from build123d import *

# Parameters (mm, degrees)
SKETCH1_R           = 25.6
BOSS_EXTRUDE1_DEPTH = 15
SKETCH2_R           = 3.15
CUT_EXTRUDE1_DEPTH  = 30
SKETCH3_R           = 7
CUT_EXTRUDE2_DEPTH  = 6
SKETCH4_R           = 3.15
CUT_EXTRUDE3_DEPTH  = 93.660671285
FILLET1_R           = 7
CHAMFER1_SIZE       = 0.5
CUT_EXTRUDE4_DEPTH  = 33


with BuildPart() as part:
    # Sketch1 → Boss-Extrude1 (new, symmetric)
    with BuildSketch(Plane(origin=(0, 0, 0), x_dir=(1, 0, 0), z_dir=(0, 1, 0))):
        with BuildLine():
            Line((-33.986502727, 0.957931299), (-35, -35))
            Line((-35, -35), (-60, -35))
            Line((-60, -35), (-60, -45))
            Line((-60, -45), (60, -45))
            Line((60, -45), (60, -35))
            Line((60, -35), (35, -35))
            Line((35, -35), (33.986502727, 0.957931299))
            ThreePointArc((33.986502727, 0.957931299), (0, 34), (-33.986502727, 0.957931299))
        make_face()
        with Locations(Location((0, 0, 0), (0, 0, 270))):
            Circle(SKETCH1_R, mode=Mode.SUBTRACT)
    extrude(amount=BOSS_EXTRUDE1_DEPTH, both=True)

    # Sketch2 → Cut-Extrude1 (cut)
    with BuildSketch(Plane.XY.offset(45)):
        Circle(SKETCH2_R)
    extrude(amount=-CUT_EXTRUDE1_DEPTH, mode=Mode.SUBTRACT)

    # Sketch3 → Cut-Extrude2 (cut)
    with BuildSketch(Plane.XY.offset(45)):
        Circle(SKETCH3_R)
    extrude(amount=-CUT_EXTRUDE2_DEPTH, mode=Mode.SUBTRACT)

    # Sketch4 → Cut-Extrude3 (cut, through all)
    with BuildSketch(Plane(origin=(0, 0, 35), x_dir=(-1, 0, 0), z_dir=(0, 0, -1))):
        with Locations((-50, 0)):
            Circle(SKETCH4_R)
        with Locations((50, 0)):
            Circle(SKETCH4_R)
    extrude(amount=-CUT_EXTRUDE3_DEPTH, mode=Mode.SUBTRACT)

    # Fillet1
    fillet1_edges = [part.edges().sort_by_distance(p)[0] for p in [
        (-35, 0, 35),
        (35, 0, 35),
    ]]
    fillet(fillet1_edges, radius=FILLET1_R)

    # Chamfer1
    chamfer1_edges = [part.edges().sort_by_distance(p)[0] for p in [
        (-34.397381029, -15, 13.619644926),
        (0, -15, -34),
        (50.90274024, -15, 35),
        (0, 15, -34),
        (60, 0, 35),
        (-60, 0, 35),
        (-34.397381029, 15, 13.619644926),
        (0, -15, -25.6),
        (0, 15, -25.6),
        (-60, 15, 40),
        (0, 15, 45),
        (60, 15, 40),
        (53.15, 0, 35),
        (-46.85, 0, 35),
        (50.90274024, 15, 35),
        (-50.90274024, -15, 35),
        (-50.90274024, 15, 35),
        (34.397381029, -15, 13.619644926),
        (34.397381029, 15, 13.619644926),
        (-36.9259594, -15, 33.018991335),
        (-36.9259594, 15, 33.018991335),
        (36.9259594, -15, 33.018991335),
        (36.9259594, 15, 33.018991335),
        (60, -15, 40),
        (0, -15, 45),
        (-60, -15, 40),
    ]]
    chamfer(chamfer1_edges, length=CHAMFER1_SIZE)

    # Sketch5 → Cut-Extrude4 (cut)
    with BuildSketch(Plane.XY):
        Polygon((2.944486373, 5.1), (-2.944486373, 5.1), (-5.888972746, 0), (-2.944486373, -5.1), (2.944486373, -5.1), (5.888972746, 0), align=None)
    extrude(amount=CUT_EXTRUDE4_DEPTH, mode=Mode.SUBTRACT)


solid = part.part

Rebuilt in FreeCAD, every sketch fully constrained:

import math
import FreeCAD as App
import Part
import Sketcher
from FreeCAD import Vector
Q = App.Units.Quantity


def edges_at(feature, points):
    """Names of the edges that pass closest to the given points."""
    edges = feature.Shape.Edges
    near = lambda p: min(range(len(edges)), key=lambda i: edges[i].distToShape(Part.Vertex(*p))[0])
    return sorted({f"Edge{near(p) + 1}" for p in points})


def add_polygon(sketch, points):
    """Adds a closed chain of lines whose ends are joined by coincident constraints."""
    first, n = sketch.GeometryCount, len(points)
    for a, b in zip(points, points[1:] + points[:1]):
        sketch.addGeometry(Part.LineSegment(App.Vector(*a, 0), App.Vector(*b, 0)), False)
    for i in range(n):
        sketch.addConstraint(Sketcher.Constraint("Coincident", first + i, 2, first + (i + 1) % n, 1))

doc = App.newDocument("Part")
body = doc.addObject("PartDesign::Body", "Body")

sketch1 = doc.addObject("Sketcher::SketchObject", "Sketch")
body.addObject(sketch1)
sketch1.AttachmentSupport = (doc.XZ_Plane, [""])
sketch1.MapMode = "FlatFace"
sketch1.addGeometry(Part.LineSegment(Vector(-33.986503, -0.957931, 0), Vector(-35, 35, 0)), False)
sketch1.addGeometry(Part.LineSegment(Vector(-35, 35, 0), Vector(-60, 35, 0)), False)
sketch1.addGeometry(Part.LineSegment(Vector(-60, 35, 0), Vector(-60, 45, 0)), False)
sketch1.addGeometry(Part.LineSegment(Vector(-60, 45, 0), Vector(60, 45, 0)), False)
sketch1.addGeometry(Part.LineSegment(Vector(60, 45, 0), Vector(60, 35, 0)), False)
sketch1.addGeometry(Part.LineSegment(Vector(60, 35, 0), Vector(35, 35, 0)), False)
sketch1.addGeometry(Part.LineSegment(Vector(35, 35, 0), Vector(33.986503, -0.957931, 0)), False)
sketch1.addGeometry(Part.ArcOfCircle(Part.Circle(Vector(0, 0, 0), Vector(0, 0, 1), 34), math.radians(-178.385509), math.radians(-1.614491)), False)
sketch1.addGeometry(Part.Circle(Vector(0, 0, 0), Vector(0, 0, 1), 25.6), False)
sketch1.addConstraint(Sketcher.Constraint("Coincident", 0, 2, 1, 1))
sketch1.addConstraint(Sketcher.Constraint("Coincident", 1, 2, 2, 1))
sketch1.addConstraint(Sketcher.Constraint("Coincident", 2, 2, 3, 1))
sketch1.addConstraint(Sketcher.Constraint("Coincident", 3, 2, 4, 1))
sketch1.addConstraint(Sketcher.Constraint("Coincident", 4, 2, 5, 1))
sketch1.addConstraint(Sketcher.Constraint("Coincident", 5, 2, 6, 1))
sketch1.addConstraint(Sketcher.Constraint("Tangent", 6, 2, 7, 2))
sketch1.addConstraint(Sketcher.Constraint("Tangent", 7, 1, 0, 1))
sketch1.addConstraint(Sketcher.Constraint("Horizontal", 1))
sketch1.addConstraint(Sketcher.Constraint("Vertical", 2))
sketch1.addConstraint(Sketcher.Constraint("Horizontal", 3))
sketch1.addConstraint(Sketcher.Constraint("Vertical", 4))
sketch1.addConstraint(Sketcher.Constraint("Horizontal", 5))
sketch1.addConstraint(Sketcher.Constraint("Coincident", 7, 3, -1, 1))
sketch1.addConstraint(Sketcher.Constraint("Coincident", 8, 3, -1, 1))
sketch1.addConstraint(Sketcher.Constraint("Symmetric", 1, 2, 4, 2, -2))
sketch1.addConstraint(Sketcher.Constraint("Horizontal", 6, 2, 7, 1))
sketch1.addConstraint(Sketcher.Constraint("Radius", 7, Q("34 mm")))
sketch1.addConstraint(Sketcher.Constraint("Diameter", 8, Q("51.2 mm")))
sketch1.addConstraint(Sketcher.Constraint("DistanceX", 1, 2, 1, 1, Q("25 mm")))
sketch1.addConstraint(Sketcher.Constraint("DistanceX", 3, 1, 3, 2, Q("120 mm")))
sketch1.addConstraint(Sketcher.Constraint("DistanceY", 2, 1, 2, 2, Q("10 mm")))
sketch1.addConstraint(Sketcher.Constraint("DistanceY", -1, 1, 0, 2, Q("35 mm")))
pad1 = doc.addObject("PartDesign::Pad", "Pad")
body.addObject(pad1)
pad1.Profile = sketch1
pad1.Length = 30
pad1.Midplane = True

sketch2 = doc.addObject("Sketcher::SketchObject", "Sketch001")
body.addObject(sketch2)
sketch2.AttachmentSupport = (doc.XY_Plane, [""])
sketch2.MapMode = "FlatFace"
sketch2.AttachmentOffset = App.Placement(Vector(0, 0, 45), App.Rotation())
sketch2.addGeometry(Part.Circle(Vector(0, 0, 0), Vector(0, 0, 1), 3.15), False)
sketch2.addConstraint(Sketcher.Constraint("Coincident", 0, 3, -1, 1))
sketch2.addConstraint(Sketcher.Constraint("Diameter", 0, Q("6.3 mm")))
pocket1 = doc.addObject("PartDesign::Pocket", "Pocket")
body.addObject(pocket1)
pocket1.Profile = sketch2
pocket1.Length = 30

sketch3 = doc.addObject("Sketcher::SketchObject", "Sketch002")
body.addObject(sketch3)
sketch3.AttachmentSupport = (doc.XY_Plane, [""])
sketch3.MapMode = "FlatFace"
sketch3.AttachmentOffset = App.Placement(Vector(0, 0, 45), App.Rotation())
sketch3.addGeometry(Part.Circle(Vector(0, 0, 0), Vector(0, 0, 1), 7), False)
sketch3.addConstraint(Sketcher.Constraint("Coincident", 0, 3, -1, 1))
sketch3.addConstraint(Sketcher.Constraint("Diameter", 0, Q("14 mm")))
pocket2 = doc.addObject("PartDesign::Pocket", "Pocket001")
body.addObject(pocket2)
pocket2.Profile = sketch3
pocket2.Length = 6

sketch4 = doc.addObject("Sketcher::SketchObject", "Sketch003")
body.addObject(sketch4)
sketch4.AttachmentSupport = (doc.XY_Plane, [""])
sketch4.MapMode = "FlatFace"
sketch4.AttachmentOffset = App.Placement(Vector(0, 0, 35), App.Rotation())
sketch4.addGeometry(Part.Circle(Vector(50, 0, 0), Vector(0, 0, 1), 3.15), False)
sketch4.addGeometry(Part.Circle(Vector(-50, 0, 0), Vector(0, 0, 1), 3.15), False)
sketch4.addConstraint(Sketcher.Constraint("Equal", 0, 1))
sketch4.addConstraint(Sketcher.Constraint("Symmetric", 0, 3, 1, 3, -1, 1))
sketch4.addConstraint(Sketcher.Constraint("PointOnObject", 0, 3, -1))
sketch4.addConstraint(Sketcher.Constraint("Diameter", 0, Q("6.3 mm")))
sketch4.addConstraint(Sketcher.Constraint("DistanceX", -1, 1, 0, 3, Q("50 mm")))
pocket3 = doc.addObject("PartDesign::Pocket", "Pocket002")
body.addObject(pocket3)
pocket3.Profile = sketch4
pocket3.Type = "ThroughAll"
pocket3.Reversed = True
doc.recompute()

fillet = doc.addObject("PartDesign::Fillet", "Fillet")
body.addObject(fillet)
fillet.Base = (pocket3, edges_at(pocket3, [(-35, 0, 35), (35, 0, 35)]))
fillet.Radius = 7
doc.recompute()

chamfer = doc.addObject("PartDesign::Chamfer", "Chamfer")
body.addObject(chamfer)
chamfer.Base = (fillet, edges_at(fillet, [
    (-34.397, -15, 13.62),
    (0, -15, -34),
    (50.903, -15, 35),
    (0, 15, -34),
    (60, 0, 35),
    (-60, 0, 35),
    (-34.397, 15, 13.62),
    (0, -15, -25.6),
    (0, 15, -25.6),
    (-60, 15, 40),
    (0, 15, 45),
    (60, 15, 40),
    (53.15, 0, 35),
    (-46.85, 0, 35),
    (50.903, 15, 35),
    (-50.903, -15, 35),
    (-50.903, 15, 35),
    (34.397, -15, 13.62),
    (34.397, 15, 13.62),
    (-36.926, -15, 33.019),
    (-36.926, 15, 33.019),
    (36.926, -15, 33.019),
    (36.926, 15, 33.019),
    (60, -15, 40),
    (0, -15, 45),
    (-60, -15, 40),
]))
chamfer.Size = 0.5

sketch5 = doc.addObject("Sketcher::SketchObject", "Sketch004")
body.addObject(sketch5)
sketch5.AttachmentSupport = (doc.XY_Plane, [""])
sketch5.MapMode = "FlatFace"
add_polygon(sketch5, [(2.944486, 5.1), (-2.944486, 5.1), (-5.888973, 0), (-2.944486, -5.1), (2.944486, -5.1), (5.888973, 0)])
sketch5.addConstraint(Sketcher.Constraint("Horizontal", 0))
sketch5.addConstraint(Sketcher.Constraint("Horizontal", 3))
sketch5.addConstraint(Sketcher.Constraint("Symmetric", 0, 2, 3, 2, -1, 1))
sketch5.addConstraint(Sketcher.Constraint("Symmetric", 1, 2, 4, 2, -1, 1))
sketch5.addConstraint(Sketcher.Constraint("PointOnObject", 1, 2, -1))
sketch5.addConstraint(Sketcher.Constraint("Parallel", 2, 5))
sketch5.addConstraint(Sketcher.Constraint("Vertical", 0, 2, 2, 2))
sketch5.addConstraint(Sketcher.Constraint("Angle", 1, Q("-120 deg")))
sketch5.addConstraint(Sketcher.Constraint("DistanceY", -1, 1, 0, 2, Q("5.1 mm")))
sketch5.addConstraint(Sketcher.Constraint("DistanceX", 0, 2, 0, 1, Q("5.888973 mm")))
pocket4 = doc.addObject("PartDesign::Pocket", "Pocket003")
body.addObject(pocket4)
pocket4.Profile = sketch5
pocket4.Length = 33
pocket4.Reversed = True

doc.recompute()
